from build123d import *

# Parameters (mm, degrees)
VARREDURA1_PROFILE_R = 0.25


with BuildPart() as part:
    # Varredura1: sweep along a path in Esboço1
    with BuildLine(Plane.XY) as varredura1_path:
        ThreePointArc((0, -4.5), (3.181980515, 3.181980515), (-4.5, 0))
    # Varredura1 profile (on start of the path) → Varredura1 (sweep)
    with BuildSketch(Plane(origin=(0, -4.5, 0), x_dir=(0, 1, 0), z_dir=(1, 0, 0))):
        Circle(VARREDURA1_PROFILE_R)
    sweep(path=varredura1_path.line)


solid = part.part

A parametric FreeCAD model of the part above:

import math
import FreeCAD as App
import Part
import Sketcher

doc = App.newDocument("Part")
params = doc.addObject("Spreadsheet::Sheet", "Params")
for row, (alias, value) in enumerate([
    ("sketch1_diameter", "0.5 mm"),
    ("sketch2_radius", "4.5 mm"),
], start=1):
    params.set(f"A{row}", alias)
    params.set(f"B{row}", "=" + value)
    params.setAlias(f"B{row}", alias)

body = doc.addObject("PartDesign::Body", "Body")

# Sketch on YZ plane
sketch1 = doc.addObject("Sketcher::SketchObject", "Sketch")
body.addObject(sketch1)
sketch1.AttachmentSupport = (doc.YZ_Plane, [""])
sketch1.MapMode = "FlatFace"
sketch1.addGeometry(Part.Circle(App.Vector(-4.5, 0, 0), App.Vector(0, 0, 1), 0.25), False)
sketch1.addConstraint(Sketcher.Constraint("PointOnObject", 0, 3, -1))
sketch1.addConstraint(Sketcher.Constraint("Diameter", 0, 0.5))
sketch1.addConstraint(Sketcher.Constraint("DistanceX", 0, 3, -1, 1, 4.5))
sketch1.setExpression("Constraints[1]", "Params.sketch1_diameter")

# Sketch on XY plane
sketch2 = doc.addObject("Sketcher::SketchObject", "Sketch001")
body.addObject(sketch2)
sketch2.AttachmentSupport = (doc.XY_Plane, [""])
sketch2.MapMode = "FlatFace"
sketch2.addGeometry(Part.ArcOfCircle(Part.Circle(App.Vector(0, 0, 0), App.Vector(0, 0, 1), 4.5), math.radians(-90), math.radians(180)), False)
sketch2.addConstraint(Sketcher.Constraint("Coincident", 0, 3, -1, 1))
sketch2.addConstraint(Sketcher.Constraint("PointOnObject", 0, 1, -2))
sketch2.addConstraint(Sketcher.Constraint("PointOnObject", 0, 2, -1))
sketch2.addConstraint(Sketcher.Constraint("Radius", 0, 4.5))
sketch2.setExpression("Constraints[3]", "Params.sketch2_radius")
doc.recompute()

additivepipe = doc.addObject("PartDesign::AdditivePipe", "AdditivePipe")
body.addObject(additivepipe)
additivepipe.Profile = sketch1
additivepipe.Spine = (sketch2, ["Edge1"])

doc.recompute()
